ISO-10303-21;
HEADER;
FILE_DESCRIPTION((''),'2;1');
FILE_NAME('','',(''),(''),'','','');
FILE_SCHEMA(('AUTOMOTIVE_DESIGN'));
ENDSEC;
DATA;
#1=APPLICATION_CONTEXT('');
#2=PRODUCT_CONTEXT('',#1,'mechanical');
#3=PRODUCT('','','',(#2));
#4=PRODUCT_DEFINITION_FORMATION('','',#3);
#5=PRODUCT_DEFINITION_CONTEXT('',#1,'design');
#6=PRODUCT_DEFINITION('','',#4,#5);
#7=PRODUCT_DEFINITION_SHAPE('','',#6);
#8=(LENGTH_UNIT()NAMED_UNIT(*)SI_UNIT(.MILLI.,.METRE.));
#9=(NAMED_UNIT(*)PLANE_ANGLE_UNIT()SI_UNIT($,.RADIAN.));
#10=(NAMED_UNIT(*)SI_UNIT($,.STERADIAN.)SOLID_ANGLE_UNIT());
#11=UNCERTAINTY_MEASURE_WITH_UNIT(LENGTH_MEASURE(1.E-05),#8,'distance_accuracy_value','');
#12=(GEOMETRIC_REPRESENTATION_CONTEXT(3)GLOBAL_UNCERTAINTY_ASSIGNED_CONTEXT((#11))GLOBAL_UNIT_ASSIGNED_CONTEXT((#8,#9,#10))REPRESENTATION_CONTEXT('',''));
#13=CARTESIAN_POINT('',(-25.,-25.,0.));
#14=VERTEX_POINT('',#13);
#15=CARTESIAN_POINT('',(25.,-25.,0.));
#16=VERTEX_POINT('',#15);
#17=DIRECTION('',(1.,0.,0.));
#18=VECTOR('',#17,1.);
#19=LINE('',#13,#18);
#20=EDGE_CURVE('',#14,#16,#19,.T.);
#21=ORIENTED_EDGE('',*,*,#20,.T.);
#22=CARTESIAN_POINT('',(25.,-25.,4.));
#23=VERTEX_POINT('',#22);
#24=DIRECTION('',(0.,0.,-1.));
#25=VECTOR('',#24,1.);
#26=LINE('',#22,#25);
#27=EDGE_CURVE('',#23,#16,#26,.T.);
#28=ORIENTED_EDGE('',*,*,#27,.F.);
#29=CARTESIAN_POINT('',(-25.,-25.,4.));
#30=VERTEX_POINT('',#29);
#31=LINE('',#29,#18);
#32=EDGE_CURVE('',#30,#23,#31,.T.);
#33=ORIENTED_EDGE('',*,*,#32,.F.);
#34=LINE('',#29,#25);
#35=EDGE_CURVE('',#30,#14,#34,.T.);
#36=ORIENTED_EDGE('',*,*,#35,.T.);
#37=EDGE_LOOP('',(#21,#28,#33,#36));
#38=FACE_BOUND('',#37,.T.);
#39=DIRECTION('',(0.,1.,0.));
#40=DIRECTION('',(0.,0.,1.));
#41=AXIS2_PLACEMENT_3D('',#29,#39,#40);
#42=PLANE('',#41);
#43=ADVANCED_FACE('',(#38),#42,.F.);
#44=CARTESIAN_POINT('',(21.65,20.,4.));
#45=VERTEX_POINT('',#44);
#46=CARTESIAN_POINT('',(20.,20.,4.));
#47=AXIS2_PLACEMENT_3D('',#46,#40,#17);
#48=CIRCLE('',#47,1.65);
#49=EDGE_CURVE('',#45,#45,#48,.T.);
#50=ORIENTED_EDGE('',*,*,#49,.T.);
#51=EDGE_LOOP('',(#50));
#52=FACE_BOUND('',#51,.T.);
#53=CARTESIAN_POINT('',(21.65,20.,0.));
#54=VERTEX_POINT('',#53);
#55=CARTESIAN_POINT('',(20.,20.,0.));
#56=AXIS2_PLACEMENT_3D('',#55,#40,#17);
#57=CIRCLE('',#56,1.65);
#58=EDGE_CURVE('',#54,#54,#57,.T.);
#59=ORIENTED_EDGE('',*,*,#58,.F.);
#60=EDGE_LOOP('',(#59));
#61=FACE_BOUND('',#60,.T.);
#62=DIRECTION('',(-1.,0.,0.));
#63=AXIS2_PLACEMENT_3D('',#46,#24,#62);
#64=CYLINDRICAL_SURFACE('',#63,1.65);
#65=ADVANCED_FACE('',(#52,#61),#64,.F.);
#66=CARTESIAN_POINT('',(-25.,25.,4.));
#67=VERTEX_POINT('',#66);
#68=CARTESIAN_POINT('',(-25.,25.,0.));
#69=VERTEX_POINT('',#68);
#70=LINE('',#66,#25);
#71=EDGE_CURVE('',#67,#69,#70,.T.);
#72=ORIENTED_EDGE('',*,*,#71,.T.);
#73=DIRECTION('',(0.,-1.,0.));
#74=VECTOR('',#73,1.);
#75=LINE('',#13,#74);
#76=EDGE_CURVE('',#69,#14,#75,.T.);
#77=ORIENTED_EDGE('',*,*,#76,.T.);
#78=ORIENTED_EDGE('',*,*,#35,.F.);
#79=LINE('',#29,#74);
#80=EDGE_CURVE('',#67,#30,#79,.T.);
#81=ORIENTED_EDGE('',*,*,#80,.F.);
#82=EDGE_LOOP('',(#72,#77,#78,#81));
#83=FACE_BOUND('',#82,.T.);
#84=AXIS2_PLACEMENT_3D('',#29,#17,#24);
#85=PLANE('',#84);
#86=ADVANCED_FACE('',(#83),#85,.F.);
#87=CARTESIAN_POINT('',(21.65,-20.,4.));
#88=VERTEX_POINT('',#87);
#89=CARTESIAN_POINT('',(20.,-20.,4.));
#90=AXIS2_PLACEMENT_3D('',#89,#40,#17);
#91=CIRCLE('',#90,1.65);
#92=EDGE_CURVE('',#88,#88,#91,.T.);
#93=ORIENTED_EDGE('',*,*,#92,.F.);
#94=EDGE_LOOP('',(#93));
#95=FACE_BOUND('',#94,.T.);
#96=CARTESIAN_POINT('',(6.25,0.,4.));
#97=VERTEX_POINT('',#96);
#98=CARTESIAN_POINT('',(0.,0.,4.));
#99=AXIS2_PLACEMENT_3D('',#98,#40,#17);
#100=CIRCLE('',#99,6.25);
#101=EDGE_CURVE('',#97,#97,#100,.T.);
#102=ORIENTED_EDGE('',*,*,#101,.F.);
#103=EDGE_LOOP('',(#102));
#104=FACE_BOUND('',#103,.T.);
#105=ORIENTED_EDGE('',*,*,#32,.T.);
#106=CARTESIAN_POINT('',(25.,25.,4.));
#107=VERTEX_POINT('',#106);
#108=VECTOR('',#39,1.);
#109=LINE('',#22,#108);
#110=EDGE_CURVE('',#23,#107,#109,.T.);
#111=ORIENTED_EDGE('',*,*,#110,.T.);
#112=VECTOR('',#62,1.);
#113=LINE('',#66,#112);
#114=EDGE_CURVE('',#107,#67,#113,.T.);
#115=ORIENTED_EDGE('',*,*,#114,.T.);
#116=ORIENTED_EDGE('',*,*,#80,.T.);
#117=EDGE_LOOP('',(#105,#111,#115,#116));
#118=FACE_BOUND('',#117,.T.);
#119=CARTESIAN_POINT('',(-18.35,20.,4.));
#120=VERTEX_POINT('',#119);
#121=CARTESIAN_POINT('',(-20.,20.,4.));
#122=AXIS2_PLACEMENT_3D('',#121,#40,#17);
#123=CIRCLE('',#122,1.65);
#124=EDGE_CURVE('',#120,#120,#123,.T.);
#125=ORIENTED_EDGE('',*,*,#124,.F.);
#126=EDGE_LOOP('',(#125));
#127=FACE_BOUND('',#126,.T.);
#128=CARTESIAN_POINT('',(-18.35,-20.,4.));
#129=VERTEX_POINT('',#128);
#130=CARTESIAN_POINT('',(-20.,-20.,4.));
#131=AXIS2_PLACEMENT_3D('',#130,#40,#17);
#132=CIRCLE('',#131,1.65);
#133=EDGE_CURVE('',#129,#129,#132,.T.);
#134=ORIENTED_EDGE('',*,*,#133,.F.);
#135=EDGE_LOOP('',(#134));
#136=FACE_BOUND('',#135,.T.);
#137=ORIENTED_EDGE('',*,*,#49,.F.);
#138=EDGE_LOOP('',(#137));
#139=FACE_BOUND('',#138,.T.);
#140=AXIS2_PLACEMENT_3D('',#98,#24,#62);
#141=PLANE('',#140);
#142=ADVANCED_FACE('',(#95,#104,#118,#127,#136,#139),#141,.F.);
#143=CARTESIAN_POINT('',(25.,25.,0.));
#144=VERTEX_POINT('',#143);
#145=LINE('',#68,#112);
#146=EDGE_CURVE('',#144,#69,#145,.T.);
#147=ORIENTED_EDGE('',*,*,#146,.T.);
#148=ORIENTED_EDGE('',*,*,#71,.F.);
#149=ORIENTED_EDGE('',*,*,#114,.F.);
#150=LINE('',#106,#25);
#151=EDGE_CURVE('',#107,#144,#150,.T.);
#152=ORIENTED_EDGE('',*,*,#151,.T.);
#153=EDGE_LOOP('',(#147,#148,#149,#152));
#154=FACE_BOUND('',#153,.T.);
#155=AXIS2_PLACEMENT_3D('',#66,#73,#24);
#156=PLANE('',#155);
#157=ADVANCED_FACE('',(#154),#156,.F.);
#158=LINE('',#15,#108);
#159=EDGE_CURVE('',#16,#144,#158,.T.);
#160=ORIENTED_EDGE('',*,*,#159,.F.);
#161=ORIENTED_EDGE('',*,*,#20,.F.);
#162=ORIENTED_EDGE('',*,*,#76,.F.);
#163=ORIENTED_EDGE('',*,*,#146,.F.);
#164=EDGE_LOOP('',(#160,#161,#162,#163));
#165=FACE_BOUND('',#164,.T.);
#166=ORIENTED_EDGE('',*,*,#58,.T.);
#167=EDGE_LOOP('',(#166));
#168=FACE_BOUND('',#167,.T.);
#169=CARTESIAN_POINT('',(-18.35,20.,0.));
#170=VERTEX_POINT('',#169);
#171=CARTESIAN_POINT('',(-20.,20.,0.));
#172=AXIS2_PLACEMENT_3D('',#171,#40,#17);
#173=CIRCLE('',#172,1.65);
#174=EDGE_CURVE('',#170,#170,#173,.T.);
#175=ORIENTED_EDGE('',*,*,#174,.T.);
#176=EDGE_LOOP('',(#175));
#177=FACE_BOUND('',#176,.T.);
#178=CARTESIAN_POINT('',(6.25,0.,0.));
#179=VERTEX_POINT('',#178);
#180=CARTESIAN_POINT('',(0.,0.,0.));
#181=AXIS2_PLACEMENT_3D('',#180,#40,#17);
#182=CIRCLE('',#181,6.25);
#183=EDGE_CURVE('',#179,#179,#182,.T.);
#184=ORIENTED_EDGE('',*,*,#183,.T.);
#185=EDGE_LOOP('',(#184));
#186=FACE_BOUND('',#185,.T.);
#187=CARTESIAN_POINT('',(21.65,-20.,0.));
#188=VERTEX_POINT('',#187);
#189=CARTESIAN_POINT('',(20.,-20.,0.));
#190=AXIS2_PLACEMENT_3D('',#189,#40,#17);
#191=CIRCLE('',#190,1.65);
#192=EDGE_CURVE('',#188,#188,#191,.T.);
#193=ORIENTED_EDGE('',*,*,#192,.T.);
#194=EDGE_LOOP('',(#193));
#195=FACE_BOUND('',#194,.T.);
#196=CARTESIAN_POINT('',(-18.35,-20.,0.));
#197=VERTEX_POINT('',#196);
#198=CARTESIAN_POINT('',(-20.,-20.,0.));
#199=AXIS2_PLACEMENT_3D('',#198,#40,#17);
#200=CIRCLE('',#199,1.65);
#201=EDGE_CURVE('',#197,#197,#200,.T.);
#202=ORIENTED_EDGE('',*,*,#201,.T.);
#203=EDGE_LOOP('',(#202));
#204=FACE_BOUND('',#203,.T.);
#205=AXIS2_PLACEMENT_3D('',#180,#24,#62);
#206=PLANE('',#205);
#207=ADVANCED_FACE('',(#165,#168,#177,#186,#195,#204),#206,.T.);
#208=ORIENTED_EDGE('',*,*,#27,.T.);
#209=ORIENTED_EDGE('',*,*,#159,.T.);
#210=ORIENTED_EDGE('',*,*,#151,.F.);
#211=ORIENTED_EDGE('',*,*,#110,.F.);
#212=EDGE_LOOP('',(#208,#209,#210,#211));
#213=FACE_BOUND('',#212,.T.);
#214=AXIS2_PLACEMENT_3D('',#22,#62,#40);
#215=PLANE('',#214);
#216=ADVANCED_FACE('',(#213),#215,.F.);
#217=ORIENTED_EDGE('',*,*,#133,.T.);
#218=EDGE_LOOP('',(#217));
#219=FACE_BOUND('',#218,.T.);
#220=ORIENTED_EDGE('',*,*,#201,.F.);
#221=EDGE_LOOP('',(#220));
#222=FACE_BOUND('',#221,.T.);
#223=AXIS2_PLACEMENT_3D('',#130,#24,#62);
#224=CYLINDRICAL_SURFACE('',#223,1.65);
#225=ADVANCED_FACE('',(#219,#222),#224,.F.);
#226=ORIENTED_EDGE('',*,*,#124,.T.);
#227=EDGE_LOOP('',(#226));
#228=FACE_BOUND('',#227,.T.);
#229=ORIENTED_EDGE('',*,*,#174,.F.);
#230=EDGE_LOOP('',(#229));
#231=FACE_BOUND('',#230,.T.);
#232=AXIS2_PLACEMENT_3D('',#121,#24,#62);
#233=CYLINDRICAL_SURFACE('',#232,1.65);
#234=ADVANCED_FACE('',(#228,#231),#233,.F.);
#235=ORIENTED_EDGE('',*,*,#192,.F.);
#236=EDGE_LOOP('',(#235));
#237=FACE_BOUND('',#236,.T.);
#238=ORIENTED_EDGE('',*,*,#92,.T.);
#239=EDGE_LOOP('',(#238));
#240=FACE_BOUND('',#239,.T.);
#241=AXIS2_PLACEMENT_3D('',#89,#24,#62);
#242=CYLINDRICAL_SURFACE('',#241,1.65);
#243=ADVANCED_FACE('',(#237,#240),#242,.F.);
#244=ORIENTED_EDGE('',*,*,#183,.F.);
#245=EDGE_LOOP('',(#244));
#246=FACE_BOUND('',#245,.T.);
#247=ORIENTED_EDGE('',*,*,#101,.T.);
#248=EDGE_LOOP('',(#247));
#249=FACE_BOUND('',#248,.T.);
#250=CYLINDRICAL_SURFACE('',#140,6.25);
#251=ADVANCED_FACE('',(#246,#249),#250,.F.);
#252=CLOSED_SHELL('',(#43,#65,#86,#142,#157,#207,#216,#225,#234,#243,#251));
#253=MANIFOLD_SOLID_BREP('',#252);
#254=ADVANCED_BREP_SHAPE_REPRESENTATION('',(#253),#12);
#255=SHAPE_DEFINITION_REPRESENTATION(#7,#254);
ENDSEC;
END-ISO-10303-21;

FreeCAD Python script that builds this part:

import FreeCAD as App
import Part
import Sketcher
from FreeCAD import Vector
Q = App.Units.Quantity


def add_polygon(sketch, points):
    """Adds a closed chain of lines whose ends are joined by coincident constraints."""
    first, n = sketch.GeometryCount, len(points)
    for a, b in zip(points, points[1:] + points[:1]):
        sketch.addGeometry(Part.LineSegment(App.Vector(*a, 0), App.Vector(*b, 0)), False)
    for i in range(n):
        sketch.addConstraint(Sketcher.Constraint("Coincident", first + i, 2, first + (i + 1) % n, 1))

doc = App.newDocument("Part")
body = doc.addObject("PartDesign::Body", "Body")

sketch1 = doc.addObject("Sketcher::SketchObject", "Sketch")
body.addObject(sketch1)
sketch1.AttachmentSupport = (doc.XY_Plane, [""])
sketch1.MapMode = "FlatFace"
add_polygon(sketch1, [(-25, 25), (-25, -25), (25, -25), (25, 25)])
sketch1.addGeometry(Part.Circle(Vector(-20, -20, 0), Vector(0, 0, 1), 1.65), False)
sketch1.addGeometry(Part.Circle(Vector(20, -20, 0), Vector(0, 0, 1), 1.65), False)
sketch1.addGeometry(Part.Circle(Vector(-20, 20, 0), Vector(0, 0, 1), 1.65), False)
sketch1.addGeometry(Part.Circle(Vector(0, 0, 0), Vector(0, 0, 1), 6.25), False)
sketch1.addGeometry(Part.Circle(Vector(20, 20, 0), Vector(0, 0, 1), 1.65), False)
sketch1.addConstraint([
    Sketcher.Constraint("Vertical", 0),
    Sketcher.Constraint("Horizontal", 1),
    Sketcher.Constraint("Vertical", 2),
    Sketcher.Constraint("Horizontal", 3),
    Sketcher.Constraint("Coincident", 7, 3, -1, 1),
    Sketcher.Constraint("Equal", 4, 5),
    Sketcher.Constraint("Equal", 5, 6),
    Sketcher.Constraint("Equal", 6, 8),
    Sketcher.Constraint("Symmetric", 5, 3, 6, 3, -1, 1),
    Sketcher.Constraint("Symmetric", 4, 3, 8, 3, -1, 1),
    Sketcher.Constraint("Symmetric", 0, 2, 2, 2, -1, 1),
    Sketcher.Constraint("Symmetric", 4, 3, 5, 3, -2),
    Sketcher.Constraint("Equal", 3, 0),
    Sketcher.Constraint("Diameter", 4, Q("3.3 mm")),
    Sketcher.Constraint("Diameter", 7, Q("12.5 mm")),
    Sketcher.Constraint("DistanceX", 1, 1, 1, 2, Q("50 mm")),
    Sketcher.Constraint("DistanceX", 4, 3, -1, 1, Q("20 mm")),
    Sketcher.Constraint("DistanceY", 4, 3, -1, 1, Q("20 mm")),
])
pad1 = doc.addObject("PartDesign::Pad", "Pad")
body.addObject(pad1)
pad1.Profile = sketch1
pad1.Length = 4

doc.recompute()
